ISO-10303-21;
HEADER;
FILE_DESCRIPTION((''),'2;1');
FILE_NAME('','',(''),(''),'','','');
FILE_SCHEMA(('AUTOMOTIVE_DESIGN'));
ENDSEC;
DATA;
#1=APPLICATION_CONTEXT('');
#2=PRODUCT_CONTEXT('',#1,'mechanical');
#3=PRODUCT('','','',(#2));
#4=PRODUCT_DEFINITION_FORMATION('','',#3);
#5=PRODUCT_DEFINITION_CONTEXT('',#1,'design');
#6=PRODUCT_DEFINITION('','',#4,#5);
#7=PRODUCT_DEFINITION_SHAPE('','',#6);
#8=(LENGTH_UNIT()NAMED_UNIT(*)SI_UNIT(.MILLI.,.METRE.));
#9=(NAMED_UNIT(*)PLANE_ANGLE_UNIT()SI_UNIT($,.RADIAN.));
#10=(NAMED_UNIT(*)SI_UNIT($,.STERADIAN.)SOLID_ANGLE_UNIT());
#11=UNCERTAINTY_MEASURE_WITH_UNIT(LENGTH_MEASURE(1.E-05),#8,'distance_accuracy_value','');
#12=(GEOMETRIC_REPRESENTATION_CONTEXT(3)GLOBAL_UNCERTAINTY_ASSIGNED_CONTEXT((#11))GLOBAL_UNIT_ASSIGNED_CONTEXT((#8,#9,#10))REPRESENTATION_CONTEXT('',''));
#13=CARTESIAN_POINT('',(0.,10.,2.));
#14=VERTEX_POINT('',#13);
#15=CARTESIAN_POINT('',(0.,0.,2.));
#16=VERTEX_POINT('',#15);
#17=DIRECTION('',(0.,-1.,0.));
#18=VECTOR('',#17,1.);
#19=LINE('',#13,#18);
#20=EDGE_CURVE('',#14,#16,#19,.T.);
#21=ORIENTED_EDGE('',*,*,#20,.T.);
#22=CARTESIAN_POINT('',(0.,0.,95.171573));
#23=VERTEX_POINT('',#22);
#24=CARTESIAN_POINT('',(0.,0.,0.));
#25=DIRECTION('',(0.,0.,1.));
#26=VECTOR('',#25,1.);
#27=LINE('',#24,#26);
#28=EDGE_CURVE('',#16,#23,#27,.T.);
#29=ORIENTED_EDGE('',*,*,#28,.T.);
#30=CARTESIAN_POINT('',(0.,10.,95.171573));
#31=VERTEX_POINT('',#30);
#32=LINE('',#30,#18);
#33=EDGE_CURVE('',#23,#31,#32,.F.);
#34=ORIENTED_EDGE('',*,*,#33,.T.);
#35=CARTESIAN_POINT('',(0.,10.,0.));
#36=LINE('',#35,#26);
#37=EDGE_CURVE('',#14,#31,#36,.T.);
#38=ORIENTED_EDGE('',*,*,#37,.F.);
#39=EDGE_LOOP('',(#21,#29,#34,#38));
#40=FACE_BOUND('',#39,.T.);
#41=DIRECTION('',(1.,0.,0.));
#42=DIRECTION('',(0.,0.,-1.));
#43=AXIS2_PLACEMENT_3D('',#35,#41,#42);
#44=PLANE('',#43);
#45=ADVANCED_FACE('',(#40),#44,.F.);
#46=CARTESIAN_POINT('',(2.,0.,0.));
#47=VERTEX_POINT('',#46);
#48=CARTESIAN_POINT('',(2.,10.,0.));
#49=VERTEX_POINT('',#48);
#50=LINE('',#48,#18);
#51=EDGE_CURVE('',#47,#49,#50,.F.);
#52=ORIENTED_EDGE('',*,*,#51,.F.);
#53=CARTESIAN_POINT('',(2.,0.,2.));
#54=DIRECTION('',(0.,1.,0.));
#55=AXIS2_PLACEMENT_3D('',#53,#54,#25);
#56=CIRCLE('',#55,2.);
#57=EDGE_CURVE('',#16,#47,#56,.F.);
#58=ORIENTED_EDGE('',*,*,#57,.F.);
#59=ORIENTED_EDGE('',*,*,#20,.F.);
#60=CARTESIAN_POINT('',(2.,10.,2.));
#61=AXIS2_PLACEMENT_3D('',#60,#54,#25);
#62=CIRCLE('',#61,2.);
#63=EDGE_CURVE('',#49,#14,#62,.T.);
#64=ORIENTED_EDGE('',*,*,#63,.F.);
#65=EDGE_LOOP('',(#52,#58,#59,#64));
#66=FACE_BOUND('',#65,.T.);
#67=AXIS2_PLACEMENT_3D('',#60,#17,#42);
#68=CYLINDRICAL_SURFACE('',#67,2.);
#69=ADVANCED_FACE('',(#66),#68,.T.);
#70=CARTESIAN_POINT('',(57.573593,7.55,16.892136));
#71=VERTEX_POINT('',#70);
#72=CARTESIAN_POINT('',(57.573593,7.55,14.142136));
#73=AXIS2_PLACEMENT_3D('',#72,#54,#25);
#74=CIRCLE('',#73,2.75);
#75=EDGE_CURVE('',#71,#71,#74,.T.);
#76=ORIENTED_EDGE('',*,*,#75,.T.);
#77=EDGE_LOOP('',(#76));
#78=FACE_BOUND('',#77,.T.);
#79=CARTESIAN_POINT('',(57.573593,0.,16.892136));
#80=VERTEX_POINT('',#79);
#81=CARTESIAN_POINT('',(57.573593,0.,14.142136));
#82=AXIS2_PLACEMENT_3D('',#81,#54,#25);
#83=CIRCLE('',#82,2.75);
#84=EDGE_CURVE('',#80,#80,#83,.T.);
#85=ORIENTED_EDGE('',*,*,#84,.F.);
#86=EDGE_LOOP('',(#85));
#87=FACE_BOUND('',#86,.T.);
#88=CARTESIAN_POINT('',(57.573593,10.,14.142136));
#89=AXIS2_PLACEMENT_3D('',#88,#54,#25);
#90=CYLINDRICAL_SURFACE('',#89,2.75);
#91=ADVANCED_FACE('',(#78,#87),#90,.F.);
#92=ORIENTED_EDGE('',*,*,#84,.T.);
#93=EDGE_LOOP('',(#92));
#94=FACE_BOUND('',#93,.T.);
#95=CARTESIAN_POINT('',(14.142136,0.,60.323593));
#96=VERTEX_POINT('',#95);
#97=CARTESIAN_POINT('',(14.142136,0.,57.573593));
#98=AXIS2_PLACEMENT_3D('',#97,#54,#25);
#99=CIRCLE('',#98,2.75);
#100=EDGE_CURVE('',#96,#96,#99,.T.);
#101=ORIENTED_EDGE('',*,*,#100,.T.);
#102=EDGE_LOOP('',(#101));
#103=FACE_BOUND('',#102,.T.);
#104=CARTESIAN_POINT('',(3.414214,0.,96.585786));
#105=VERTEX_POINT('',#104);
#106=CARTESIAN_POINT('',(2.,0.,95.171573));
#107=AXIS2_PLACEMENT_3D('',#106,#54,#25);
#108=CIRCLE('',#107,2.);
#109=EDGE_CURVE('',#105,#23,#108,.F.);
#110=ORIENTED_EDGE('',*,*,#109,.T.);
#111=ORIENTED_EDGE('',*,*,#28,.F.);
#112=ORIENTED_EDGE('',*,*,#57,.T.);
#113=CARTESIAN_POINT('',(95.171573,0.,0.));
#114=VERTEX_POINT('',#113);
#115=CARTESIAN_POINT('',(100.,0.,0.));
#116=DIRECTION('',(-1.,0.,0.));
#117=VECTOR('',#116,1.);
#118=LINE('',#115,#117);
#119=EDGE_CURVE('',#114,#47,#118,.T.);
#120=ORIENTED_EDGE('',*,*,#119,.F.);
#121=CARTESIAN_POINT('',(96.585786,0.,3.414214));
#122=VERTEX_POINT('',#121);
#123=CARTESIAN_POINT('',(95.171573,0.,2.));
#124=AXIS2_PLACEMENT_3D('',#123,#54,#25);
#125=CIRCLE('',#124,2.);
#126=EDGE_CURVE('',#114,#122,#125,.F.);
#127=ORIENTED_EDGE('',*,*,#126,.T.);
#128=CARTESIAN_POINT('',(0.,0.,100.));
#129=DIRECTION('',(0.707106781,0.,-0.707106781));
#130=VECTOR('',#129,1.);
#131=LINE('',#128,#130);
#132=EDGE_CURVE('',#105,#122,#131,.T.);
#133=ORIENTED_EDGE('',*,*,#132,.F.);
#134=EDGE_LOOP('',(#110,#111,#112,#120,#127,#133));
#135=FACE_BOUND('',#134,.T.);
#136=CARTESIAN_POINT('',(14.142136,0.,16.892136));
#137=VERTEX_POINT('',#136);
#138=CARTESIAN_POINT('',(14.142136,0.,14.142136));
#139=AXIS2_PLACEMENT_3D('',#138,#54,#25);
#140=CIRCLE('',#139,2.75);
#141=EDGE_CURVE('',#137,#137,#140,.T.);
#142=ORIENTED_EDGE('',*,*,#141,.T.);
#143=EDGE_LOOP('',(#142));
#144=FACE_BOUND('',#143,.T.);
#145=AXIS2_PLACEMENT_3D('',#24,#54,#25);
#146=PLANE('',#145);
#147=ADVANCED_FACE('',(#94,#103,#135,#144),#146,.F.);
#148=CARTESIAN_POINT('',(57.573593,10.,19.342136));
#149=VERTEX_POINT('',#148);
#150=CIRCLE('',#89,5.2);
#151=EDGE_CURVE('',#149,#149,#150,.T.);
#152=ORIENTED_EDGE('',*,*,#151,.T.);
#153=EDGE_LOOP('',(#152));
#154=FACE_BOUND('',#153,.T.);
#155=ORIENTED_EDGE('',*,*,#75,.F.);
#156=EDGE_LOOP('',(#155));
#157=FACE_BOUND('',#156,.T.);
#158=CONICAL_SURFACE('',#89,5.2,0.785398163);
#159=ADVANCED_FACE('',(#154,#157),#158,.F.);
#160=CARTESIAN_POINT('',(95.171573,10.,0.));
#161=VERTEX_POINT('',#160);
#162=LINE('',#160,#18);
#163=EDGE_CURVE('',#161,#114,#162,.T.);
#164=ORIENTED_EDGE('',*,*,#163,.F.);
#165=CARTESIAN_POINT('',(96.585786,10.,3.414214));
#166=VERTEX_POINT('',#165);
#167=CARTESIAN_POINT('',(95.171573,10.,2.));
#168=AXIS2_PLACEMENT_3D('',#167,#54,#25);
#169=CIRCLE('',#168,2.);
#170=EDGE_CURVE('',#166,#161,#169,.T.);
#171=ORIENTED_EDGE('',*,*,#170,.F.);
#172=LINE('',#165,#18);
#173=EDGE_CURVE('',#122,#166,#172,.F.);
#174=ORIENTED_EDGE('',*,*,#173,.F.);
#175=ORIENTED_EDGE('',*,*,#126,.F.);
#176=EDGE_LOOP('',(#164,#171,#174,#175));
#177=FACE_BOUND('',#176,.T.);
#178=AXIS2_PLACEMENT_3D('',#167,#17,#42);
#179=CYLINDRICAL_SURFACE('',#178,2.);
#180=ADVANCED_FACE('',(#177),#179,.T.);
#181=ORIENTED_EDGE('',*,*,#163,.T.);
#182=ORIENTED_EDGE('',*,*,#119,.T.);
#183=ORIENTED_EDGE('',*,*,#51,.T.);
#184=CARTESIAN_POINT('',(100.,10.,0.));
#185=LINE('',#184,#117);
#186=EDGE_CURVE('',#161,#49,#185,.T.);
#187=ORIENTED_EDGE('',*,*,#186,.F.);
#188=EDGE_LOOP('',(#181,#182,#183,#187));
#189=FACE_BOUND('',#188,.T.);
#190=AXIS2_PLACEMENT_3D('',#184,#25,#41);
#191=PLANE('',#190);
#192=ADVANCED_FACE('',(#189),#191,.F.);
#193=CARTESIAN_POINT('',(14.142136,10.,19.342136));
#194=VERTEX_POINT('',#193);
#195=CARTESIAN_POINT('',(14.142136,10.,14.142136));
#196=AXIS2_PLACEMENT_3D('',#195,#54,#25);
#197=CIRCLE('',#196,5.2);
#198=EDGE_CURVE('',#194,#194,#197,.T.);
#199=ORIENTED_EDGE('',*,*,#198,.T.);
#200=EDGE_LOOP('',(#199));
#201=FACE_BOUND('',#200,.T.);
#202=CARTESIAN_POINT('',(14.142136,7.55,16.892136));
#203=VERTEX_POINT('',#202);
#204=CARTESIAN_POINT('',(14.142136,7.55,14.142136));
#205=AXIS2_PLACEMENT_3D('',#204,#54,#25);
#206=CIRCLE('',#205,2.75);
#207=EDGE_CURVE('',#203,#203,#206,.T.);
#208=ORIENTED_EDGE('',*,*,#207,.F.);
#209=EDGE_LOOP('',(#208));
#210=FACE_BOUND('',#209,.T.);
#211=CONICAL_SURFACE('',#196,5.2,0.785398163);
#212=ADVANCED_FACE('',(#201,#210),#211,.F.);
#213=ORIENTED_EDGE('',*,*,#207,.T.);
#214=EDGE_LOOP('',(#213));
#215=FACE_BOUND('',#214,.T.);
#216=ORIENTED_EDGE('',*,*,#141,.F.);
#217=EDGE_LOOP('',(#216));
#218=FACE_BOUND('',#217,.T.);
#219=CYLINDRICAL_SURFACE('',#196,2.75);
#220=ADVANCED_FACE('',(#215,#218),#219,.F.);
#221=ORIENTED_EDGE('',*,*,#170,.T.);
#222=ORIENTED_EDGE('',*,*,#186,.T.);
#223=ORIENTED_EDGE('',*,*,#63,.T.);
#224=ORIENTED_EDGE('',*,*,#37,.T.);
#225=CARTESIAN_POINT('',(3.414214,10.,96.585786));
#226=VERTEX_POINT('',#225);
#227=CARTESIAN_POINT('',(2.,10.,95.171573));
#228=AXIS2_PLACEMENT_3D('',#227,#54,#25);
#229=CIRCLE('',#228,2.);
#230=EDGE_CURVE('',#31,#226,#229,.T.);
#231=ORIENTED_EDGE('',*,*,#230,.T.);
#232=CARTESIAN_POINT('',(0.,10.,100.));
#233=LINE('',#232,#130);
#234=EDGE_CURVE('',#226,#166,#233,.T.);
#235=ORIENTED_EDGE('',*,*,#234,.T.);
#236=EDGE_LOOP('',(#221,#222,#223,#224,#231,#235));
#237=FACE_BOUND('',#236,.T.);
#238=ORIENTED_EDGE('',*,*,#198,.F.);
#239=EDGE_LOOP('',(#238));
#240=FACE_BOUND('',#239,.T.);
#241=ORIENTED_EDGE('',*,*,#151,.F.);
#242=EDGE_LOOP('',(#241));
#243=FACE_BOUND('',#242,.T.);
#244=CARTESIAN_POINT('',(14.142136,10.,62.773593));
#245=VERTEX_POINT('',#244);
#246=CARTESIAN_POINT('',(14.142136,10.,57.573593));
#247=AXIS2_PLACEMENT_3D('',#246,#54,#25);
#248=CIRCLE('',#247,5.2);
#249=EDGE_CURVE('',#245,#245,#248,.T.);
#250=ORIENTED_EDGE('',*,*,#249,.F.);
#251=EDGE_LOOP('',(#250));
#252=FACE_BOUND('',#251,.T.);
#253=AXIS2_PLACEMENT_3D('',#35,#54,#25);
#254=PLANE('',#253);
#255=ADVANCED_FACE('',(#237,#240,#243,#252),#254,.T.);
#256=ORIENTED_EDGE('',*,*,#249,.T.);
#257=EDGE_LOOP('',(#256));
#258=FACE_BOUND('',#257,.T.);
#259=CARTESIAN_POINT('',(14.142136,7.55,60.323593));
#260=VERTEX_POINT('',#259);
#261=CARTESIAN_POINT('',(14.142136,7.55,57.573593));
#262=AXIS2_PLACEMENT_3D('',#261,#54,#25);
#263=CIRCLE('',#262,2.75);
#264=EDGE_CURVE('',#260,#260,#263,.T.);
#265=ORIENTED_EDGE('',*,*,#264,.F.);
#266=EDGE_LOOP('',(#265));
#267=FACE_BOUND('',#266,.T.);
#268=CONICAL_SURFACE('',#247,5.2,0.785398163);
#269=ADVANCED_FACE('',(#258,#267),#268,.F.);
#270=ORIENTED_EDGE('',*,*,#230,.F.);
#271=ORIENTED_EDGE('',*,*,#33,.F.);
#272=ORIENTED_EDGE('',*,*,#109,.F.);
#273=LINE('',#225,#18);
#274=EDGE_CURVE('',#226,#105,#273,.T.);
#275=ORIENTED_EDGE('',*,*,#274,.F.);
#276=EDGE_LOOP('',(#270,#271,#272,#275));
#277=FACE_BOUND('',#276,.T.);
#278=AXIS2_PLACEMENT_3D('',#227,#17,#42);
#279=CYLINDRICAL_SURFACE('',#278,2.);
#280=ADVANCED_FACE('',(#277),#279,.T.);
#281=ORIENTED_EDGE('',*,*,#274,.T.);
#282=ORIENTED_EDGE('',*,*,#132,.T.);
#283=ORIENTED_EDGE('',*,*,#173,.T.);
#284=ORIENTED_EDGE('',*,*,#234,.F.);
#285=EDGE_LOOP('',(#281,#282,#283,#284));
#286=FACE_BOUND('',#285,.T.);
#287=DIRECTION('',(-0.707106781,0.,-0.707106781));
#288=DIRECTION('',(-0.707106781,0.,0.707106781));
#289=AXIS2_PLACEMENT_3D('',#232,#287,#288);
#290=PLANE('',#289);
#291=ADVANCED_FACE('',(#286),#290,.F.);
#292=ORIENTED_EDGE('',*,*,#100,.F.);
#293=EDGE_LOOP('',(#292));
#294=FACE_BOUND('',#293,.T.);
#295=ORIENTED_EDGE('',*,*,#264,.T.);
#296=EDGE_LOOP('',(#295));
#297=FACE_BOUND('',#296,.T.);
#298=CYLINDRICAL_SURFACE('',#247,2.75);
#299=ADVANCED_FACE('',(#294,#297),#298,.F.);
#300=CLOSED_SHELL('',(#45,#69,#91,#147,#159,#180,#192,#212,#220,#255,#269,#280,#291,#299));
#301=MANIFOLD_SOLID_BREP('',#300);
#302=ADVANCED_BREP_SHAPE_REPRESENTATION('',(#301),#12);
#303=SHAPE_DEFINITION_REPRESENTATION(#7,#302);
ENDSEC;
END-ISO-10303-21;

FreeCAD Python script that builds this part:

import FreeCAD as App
import Part
import Sketcher
from FreeCAD import Vector


def edges_at(feature, points):
    """Names of the edges that pass closest to the given points."""
    edges = feature.Shape.Edges
    near = lambda p: min(range(len(edges)), key=lambda i: edges[i].distToShape(Part.Vertex(*p))[0])
    return sorted({f"Edge{near(p) + 1}" for p in points})

doc = App.newDocument("Part")
body = doc.addObject("PartDesign::Body", "Body")

# Sketch on XZ plane
sketch1 = body.newObject("Sketcher::SketchObject", "Sketch")
sketch1.AttachmentSupport = (doc.getObject("XZ_Plane"), [""])
sketch1.MapMode = "FlatFace"
sketch1.addGeometry(Part.LineSegment(Vector(0, 0, 0), Vector(0, 100, 0)), False)
sketch1.addGeometry(Part.LineSegment(Vector(0, 100, 0), Vector(100, 0, 0)), False)
sketch1.addGeometry(Part.LineSegment(Vector(100, 0, 0), Vector(0, 0, 0)), False)
sketch1.addConstraint(Sketcher.Constraint("Coincident", 0, 2, 1, 1))
sketch1.addConstraint(Sketcher.Constraint("Coincident", 1, 2, 2, 1))
sketch1.addConstraint(Sketcher.Constraint("Coincident", 2, 2, 0, 1))
sketch1.addConstraint(Sketcher.Constraint("Vertical", 0))
sketch1.addConstraint(Sketcher.Constraint("Horizontal", 2))
sketch1.addConstraint(Sketcher.Constraint("Coincident", 2, 2, -1, 1))
sketch1.addConstraint(Sketcher.Constraint("Equal", 2, 0))
sketch1.addConstraint(Sketcher.Constraint("DistanceX", 2, 2, 2, 1, 100.0))
pad1 = body.newObject("PartDesign::Pad", "Pad")
pad1.Profile = sketch1
pad1.Length = 10
pad1.Reversed = True

# Sketch on XZ plane
sketch2 = body.newObject("Sketcher::SketchObject", "Sketch001")
sketch2.AttachmentSupport = (doc.getObject("XZ_Plane"), [""])
sketch2.MapMode = "FlatFace"
sketch2.AttachmentOffset = App.Placement(Vector(0, 0, -10), App.Rotation())
sketch2.addGeometry(Part.Circle(Vector(14.1, 14.1, 0), Vector(0, 0, 1), 2.8), False)
sketch2.addGeometry(Part.Circle(Vector(14.1, 57.6, 0), Vector(0, 0, 1), 2.8), False)
sketch2.addGeometry(Part.Circle(Vector(57.6, 14.1, 0), Vector(0, 0, 1), 2.8), False)
sketch2.addConstraint(Sketcher.Constraint("Equal", 0, 1))
sketch2.addConstraint(Sketcher.Constraint("Equal", 1, 2))
sketch2.addConstraint(Sketcher.Constraint("Horizontal", 0, 3, 2, 3))
sketch2.addConstraint(Sketcher.Constraint("Vertical", 0, 3, 1, 3))
sketch2.addConstraint(Sketcher.Constraint("Diameter", 0, 5.5))
sketch2.addConstraint(Sketcher.Constraint("DistanceX", -1, 1, 0, 3, 14.142136))
sketch2.addConstraint(Sketcher.Constraint("DistanceY", -1, 1, 0, 3, 14.142136))
sketch2.addConstraint(Sketcher.Constraint("DistanceY", -1, 1, 1, 3, 57.573593))
sketch2.addConstraint(Sketcher.Constraint("DistanceX", -1, 1, 2, 3, 57.573593))
doc.recompute()
hole = body.newObject("PartDesign::Hole", "Hole")
hole.Profile = sketch2
hole.ThreadType = "None"
hole.Diameter = 5.5
hole.DepthType = "ThroughAll"
hole.HoleCutType = "Countersink"
hole.HoleCutDiameter = 10.4
hole.HoleCutCountersinkAngle = 90
hole.Reversed = True
doc.recompute()

fillet = body.newObject("PartDesign::Fillet", "Fillet")
fillet.Base = (hole, edges_at(hole, [(100, 5, 0), (0, 5, 100), (0, 5, 0)]))
fillet.Radius = 2

doc.recompute()
